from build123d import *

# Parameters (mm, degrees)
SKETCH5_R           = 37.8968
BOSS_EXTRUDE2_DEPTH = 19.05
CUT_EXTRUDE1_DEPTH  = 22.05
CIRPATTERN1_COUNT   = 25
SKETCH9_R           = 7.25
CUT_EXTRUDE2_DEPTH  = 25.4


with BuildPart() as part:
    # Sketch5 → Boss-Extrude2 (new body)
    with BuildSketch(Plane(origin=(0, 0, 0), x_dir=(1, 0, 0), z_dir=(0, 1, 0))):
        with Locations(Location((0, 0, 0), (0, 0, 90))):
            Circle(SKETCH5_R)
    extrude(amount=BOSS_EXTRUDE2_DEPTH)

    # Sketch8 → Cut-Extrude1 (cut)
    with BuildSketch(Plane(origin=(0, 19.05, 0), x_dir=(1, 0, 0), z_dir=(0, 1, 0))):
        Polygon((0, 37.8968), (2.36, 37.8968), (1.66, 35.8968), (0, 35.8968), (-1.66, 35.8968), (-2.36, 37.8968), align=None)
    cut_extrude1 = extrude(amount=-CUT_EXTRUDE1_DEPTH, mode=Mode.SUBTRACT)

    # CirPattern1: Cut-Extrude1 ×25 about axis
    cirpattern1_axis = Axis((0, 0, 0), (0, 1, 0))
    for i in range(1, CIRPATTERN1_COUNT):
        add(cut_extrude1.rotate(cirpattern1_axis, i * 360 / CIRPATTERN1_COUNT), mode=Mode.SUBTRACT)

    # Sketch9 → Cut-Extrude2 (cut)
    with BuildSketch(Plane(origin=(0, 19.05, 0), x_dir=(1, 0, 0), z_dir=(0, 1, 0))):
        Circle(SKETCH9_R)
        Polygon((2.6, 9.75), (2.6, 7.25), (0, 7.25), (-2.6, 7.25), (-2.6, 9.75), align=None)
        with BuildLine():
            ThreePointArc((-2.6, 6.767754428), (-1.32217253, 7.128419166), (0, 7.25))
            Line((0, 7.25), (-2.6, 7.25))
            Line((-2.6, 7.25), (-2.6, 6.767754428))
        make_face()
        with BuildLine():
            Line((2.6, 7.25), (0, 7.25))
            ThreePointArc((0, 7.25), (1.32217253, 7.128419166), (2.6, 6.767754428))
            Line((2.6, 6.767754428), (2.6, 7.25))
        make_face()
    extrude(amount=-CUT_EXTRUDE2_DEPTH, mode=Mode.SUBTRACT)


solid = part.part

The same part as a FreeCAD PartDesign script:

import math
import FreeCAD as App
import Part
import Sketcher
Q = App.Units.Quantity


def add_polygon(sketch, points):
    """Adds a closed chain of lines whose ends are joined by coincident constraints."""
    first, n = sketch.GeometryCount, len(points)
    for a, b in zip(points, points[1:] + points[:1]):
        sketch.addGeometry(Part.LineSegment(App.Vector(*a, 0), App.Vector(*b, 0)), False)
    for i in range(n):
        sketch.addConstraint(Sketcher.Constraint("Coincident", first + i, 2, first + (i + 1) % n, 1))

doc = App.newDocument("Part")
params = doc.addObject("Spreadsheet::Sheet", "Params")
for row, (alias, value) in enumerate([
    ("sketch1_diameter", "2.984 in"),
    ("pad1_length", "0.75 in"),
    ("pocket1_length", "22.05 mm"),
    ("pocket2_length", "1 in"),
], start=1):
    params.set(f"A{row}", alias)
    params.set(f"B{row}", "=" + value)
    params.setAlias(f"B{row}", alias)

body = doc.addObject("PartDesign::Body", "Body")

# Sketch on XZ plane
sketch1 = body.newObject("Sketcher::SketchObject", "Sketch")
sketch1.AttachmentSupport = (doc.getObject("XZ_Plane"), [""])
sketch1.MapMode = "FlatFace"
sketch1.addGeometry(Part.Circle(App.Vector(0, 0, 0), App.Vector(0, 0, 1), 38), False)
sketch1.addConstraint([
    Sketcher.Constraint("Coincident", 0, 3, -1, 1),
    Sketcher.Constraint("Diameter", 0, Q("2.984 in")),
])
sketch1.setExpression("Constraints[1]", "Params.sketch1_diameter")
pad1 = body.newObject("PartDesign::Pad", "Pad")
pad1.Profile = sketch1
pad1.setExpression("Length", "Params.pad1_length")
pad1.Reversed = True

# Sketch on XZ plane
sketch2 = body.newObject("Sketcher::SketchObject", "Sketch001")
sketch2.AttachmentSupport = (doc.getObject("XZ_Plane"), [""])
sketch2.MapMode = "FlatFace"
sketch2.AttachmentOffset = App.Placement(App.Vector(0, 0, -0.75 * 25.4), App.Rotation())
add_polygon(sketch2, [(2.4, -37.9), (-2.4, -37.9), (-1.7, -35.9), (1.7, -35.9)])  # lines 0-3
sketch2.addConstraint([
    Sketcher.Constraint("Horizontal", 0),
    Sketcher.Constraint("Horizontal", 2),
    Sketcher.Constraint("Equal", 1, 3),
    Sketcher.Constraint("DistanceY", 0, 2, -1, 1, Q("1.492 in")),
    Sketcher.Constraint("DistanceX", 0, 2, 0, 1, Q("4.72 mm")),
    Sketcher.Constraint("DistanceX", 2, 1, 2, 2, Q("3.32 mm")),
    Sketcher.Constraint("DistanceX", 0, 2, -1, 1, Q("2.36 mm")),
    Sketcher.Constraint("DistanceY", 1, 2, -1, 1, Q("35.8968 mm")),
])
pocket1 = body.newObject("PartDesign::Pocket", "Pocket")
pocket1.Profile = sketch2
pocket1.setExpression("Length", "Params.pocket1_length")
pocket1.Reversed = True
doc.recompute()

polarpattern = body.newObject("PartDesign::PolarPattern", "PolarPattern")
polarpattern.Originals = [pocket1]
polarpattern.Axis = (doc.getObject("Y_Axis"), [""])
polarpattern.Angle = 360
polarpattern.Occurrences = 25
body.Tip = polarpattern

# Sketch on XZ plane
sketch3 = body.newObject("Sketcher::SketchObject", "Sketch002")
sketch3.AttachmentSupport = (doc.getObject("XZ_Plane"), [""])
sketch3.MapMode = "FlatFace"
sketch3.AttachmentOffset = App.Placement(App.Vector(0, 0, -0.75 * 25.4), App.Rotation())
sketch3.addGeometry([
    Part.ArcOfCircle(Part.Circle(App.Vector(0, 0, 0), App.Vector(0, 0, 1), 7.2), math.radians(-69), math.radians(249)),
    Part.LineSegment(App.Vector(2.6, -6.8, 0), App.Vector(2.6, -9.8, 0)),
    Part.LineSegment(App.Vector(2.6, -9.8, 0), App.Vector(-2.6, -9.8, 0)),
    Part.LineSegment(App.Vector(-2.6, -9.8, 0), App.Vector(-2.6, -6.8, 0)),
], False)
sketch3.addConstraint([
    Sketcher.Constraint("Coincident", 0, 1, 1, 1),
    Sketcher.Constraint("Coincident", 1, 2, 2, 1),
    Sketcher.Constraint("Coincident", 2, 2, 3, 1),
    Sketcher.Constraint("Coincident", 3, 2, 0, 2),
    Sketcher.Constraint("Vertical", 1),
    Sketcher.Constraint("Horizontal", 2),
    Sketcher.Constraint("Vertical", 3),
    Sketcher.Constraint("Coincident", 0, 3, -1, 1),
    Sketcher.Constraint("Horizontal", 0, 1, 3, 2),
    Sketcher.Constraint("Radius", 0, Q("7.25 mm")),
    Sketcher.Constraint("DistanceX", 2, 2, 2, 1, Q("5.2 mm")),
    Sketcher.Constraint("DistanceY", 1, 2, -1, 1, Q("9.75 mm")),
])
pocket2 = body.newObject("PartDesign::Pocket", "Pocket001")
pocket2.Profile = sketch3
pocket2.setExpression("Length", "Params.pocket2_length")
pocket2.Reversed = True

doc.recompute()
